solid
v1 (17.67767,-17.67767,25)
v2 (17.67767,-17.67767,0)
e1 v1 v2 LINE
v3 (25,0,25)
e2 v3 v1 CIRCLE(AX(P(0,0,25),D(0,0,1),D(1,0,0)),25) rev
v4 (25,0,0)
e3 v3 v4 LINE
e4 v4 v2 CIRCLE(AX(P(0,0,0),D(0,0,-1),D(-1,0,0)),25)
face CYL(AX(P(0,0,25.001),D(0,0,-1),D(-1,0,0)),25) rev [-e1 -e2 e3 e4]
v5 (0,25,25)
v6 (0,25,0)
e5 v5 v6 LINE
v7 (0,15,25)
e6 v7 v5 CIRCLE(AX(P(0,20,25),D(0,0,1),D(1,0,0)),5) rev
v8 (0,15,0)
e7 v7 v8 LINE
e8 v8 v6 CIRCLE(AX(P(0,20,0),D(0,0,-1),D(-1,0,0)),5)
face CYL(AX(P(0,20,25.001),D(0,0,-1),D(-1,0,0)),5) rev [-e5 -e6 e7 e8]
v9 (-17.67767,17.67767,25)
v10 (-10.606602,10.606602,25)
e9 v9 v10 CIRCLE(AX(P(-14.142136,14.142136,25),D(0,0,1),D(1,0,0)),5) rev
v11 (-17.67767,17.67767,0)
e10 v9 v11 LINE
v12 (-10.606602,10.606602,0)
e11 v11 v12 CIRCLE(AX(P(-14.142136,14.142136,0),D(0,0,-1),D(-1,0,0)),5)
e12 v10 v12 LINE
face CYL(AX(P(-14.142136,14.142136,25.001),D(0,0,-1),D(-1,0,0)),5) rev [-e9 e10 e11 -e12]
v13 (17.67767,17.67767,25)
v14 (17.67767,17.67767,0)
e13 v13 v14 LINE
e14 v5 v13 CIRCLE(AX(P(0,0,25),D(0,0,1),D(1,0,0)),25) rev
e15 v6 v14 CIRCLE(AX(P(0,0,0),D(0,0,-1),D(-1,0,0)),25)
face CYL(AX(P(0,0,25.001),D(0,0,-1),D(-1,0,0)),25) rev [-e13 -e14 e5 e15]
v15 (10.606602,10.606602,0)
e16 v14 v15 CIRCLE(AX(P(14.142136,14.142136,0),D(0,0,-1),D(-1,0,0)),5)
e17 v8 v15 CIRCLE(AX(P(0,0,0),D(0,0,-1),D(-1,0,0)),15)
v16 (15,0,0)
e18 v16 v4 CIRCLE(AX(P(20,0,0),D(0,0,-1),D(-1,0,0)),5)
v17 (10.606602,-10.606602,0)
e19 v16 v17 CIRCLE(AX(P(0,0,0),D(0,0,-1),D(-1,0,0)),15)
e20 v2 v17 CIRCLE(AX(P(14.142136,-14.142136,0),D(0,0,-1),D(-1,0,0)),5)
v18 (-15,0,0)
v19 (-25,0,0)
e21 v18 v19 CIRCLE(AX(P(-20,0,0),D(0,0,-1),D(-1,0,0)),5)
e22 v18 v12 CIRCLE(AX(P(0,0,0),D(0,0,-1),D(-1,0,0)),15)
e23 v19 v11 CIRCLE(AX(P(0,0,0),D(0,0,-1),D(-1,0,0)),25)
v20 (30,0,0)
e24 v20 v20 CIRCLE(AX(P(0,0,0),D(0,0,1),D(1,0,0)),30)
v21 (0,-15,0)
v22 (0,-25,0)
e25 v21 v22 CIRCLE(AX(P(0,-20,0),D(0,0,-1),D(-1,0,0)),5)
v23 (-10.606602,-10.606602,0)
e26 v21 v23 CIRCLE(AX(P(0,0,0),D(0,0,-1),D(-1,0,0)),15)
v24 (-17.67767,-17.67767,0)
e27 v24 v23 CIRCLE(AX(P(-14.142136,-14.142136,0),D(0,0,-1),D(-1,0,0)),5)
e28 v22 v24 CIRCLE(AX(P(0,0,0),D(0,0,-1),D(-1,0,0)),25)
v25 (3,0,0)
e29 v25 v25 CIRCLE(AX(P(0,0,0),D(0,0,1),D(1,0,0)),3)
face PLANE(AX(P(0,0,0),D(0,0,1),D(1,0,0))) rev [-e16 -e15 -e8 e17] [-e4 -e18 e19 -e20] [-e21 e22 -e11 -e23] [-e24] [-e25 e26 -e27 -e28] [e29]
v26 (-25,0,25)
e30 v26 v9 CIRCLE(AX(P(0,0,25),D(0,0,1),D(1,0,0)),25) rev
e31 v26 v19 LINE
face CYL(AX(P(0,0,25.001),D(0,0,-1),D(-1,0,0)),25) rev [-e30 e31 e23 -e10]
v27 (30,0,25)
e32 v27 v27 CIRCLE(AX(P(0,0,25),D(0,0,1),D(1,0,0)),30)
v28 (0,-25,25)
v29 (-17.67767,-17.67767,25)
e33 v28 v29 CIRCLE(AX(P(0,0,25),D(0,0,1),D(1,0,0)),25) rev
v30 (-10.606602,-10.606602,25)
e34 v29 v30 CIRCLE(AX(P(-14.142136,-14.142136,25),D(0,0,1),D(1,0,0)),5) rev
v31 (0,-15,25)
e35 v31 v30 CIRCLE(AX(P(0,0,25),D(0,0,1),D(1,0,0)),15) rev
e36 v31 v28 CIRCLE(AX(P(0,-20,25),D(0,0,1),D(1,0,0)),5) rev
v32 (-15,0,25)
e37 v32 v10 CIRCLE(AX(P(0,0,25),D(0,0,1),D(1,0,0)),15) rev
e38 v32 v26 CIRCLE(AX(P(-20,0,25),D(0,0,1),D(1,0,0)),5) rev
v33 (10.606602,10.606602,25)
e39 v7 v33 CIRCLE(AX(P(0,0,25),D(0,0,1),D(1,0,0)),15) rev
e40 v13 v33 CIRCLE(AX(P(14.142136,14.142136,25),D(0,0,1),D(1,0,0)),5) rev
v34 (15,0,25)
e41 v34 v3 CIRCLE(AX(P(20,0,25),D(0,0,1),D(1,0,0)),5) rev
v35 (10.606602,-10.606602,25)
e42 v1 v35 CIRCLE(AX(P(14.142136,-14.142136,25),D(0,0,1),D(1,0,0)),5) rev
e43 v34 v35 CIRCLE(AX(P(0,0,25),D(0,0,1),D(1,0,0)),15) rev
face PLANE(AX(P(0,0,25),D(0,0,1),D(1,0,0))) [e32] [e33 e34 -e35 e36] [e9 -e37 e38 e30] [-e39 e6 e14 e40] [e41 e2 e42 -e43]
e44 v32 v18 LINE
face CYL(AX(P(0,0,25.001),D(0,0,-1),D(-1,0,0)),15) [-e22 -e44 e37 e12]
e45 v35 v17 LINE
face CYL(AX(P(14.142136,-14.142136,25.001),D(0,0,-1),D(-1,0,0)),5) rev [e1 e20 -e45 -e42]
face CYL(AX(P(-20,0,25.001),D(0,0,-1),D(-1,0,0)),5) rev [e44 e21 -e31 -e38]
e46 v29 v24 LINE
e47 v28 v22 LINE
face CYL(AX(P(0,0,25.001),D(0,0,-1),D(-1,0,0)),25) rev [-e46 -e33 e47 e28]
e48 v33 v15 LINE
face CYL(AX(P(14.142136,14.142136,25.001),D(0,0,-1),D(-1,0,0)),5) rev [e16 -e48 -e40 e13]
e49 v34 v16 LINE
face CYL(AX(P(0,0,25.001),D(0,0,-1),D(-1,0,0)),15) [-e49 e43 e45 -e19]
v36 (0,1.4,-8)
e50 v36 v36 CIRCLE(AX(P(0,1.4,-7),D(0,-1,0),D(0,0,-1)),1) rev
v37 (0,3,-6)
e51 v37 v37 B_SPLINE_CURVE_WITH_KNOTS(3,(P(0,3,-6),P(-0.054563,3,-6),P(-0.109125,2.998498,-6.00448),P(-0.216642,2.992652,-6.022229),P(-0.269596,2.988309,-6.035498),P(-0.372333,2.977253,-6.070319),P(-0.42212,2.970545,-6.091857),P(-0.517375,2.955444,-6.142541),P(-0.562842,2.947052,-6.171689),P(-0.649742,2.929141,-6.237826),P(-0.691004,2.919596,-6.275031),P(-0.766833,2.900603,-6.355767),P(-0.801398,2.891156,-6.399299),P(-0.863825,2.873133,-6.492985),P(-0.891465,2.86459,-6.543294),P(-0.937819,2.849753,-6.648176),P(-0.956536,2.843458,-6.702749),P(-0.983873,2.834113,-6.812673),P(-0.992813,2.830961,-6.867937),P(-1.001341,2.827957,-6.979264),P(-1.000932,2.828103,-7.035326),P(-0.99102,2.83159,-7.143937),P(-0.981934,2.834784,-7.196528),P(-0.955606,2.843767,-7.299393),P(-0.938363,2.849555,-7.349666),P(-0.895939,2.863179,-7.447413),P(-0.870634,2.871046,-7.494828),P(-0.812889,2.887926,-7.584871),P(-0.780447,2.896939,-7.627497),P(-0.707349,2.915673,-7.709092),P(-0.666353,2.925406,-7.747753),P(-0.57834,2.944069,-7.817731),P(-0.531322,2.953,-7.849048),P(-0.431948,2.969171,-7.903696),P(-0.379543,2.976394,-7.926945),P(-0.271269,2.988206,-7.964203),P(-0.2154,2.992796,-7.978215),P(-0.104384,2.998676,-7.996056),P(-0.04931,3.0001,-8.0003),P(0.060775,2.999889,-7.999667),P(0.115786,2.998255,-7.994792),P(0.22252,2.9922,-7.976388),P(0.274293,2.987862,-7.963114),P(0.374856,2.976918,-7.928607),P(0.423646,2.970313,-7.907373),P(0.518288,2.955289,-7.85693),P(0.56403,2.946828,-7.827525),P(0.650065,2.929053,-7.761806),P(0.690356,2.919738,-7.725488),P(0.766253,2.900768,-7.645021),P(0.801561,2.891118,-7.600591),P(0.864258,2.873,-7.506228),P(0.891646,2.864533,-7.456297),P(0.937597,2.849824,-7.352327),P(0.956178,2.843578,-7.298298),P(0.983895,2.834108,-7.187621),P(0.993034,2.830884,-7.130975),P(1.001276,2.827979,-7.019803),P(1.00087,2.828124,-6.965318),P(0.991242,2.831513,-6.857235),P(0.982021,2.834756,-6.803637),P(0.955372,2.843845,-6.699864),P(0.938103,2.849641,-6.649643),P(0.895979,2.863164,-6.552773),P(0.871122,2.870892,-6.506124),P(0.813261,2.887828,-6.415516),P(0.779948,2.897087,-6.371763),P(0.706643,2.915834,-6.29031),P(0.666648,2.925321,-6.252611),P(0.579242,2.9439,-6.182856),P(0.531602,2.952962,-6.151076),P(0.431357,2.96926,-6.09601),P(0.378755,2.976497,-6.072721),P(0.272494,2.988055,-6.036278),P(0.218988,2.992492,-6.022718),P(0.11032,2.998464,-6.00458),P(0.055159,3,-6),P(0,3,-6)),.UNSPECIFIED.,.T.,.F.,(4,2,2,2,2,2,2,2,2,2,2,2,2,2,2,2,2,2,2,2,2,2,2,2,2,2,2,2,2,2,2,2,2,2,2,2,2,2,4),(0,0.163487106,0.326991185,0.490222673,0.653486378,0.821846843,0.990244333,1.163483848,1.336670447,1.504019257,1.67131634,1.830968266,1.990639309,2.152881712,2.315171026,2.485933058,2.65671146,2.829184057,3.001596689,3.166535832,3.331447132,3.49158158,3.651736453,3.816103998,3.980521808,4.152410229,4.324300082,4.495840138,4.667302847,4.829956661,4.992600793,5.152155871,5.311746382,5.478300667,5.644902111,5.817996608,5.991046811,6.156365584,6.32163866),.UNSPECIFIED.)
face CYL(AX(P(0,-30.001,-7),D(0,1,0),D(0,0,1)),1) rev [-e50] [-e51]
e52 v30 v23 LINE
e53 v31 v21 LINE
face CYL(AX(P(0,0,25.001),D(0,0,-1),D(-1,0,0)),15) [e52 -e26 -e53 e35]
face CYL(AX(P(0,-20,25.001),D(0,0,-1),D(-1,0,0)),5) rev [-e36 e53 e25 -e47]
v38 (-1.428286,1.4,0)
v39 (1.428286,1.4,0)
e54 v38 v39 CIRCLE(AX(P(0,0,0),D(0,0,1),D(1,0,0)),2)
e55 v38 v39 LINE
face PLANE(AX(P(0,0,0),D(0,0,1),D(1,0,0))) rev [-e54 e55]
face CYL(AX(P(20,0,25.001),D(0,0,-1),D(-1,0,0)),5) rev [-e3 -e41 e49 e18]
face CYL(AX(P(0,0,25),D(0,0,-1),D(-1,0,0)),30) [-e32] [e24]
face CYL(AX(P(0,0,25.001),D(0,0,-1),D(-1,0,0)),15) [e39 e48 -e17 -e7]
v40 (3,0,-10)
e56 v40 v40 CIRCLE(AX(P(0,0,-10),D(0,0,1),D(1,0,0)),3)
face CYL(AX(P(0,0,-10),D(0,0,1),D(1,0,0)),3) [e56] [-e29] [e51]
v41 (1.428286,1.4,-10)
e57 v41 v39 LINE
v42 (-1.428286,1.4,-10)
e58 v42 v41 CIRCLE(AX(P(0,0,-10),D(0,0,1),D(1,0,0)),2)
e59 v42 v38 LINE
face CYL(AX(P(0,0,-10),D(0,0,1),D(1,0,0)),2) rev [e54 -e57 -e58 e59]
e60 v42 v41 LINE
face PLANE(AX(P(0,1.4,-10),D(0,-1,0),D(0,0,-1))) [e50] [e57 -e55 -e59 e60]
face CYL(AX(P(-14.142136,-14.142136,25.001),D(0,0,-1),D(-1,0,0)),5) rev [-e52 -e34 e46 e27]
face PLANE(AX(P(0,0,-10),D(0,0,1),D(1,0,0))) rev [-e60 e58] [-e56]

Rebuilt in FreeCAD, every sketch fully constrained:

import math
import FreeCAD as App
import Part
import Sketcher

doc = App.newDocument("Part")
body = doc.addObject("PartDesign::Body", "Body")

# Sketch on XY plane
sketch1 = doc.addObject("Sketcher::SketchObject", "Sketch")
body.addObject(sketch1)
sketch1.AttachmentSupport = (doc.XY_Plane, [""])
sketch1.MapMode = "FlatFace"
sketch1.addGeometry(Part.Circle(App.Vector(0, 0, 0), App.Vector(0, 0, 1), 30), False)
sketch1.addConstraint(Sketcher.Constraint("Coincident", 0, 3, -1, 1))
sketch1.addConstraint(Sketcher.Constraint("Diameter", 0, 60.0))
pad1 = doc.addObject("PartDesign::Pad", "Pad")
body.addObject(pad1)
pad1.Profile = sketch1
pad1.Length = 25

# Sketch on XY plane
sketch2 = doc.addObject("Sketcher::SketchObject", "Sketch001")
body.addObject(sketch2)
sketch2.AttachmentSupport = (doc.XY_Plane, [""])
sketch2.MapMode = "FlatFace"
sketch2.addGeometry(Part.ArcOfCircle(Part.Circle(App.Vector(0, 0, 0), App.Vector(0, 0, 1), 3), math.radians(27.818139), math.radians(152.181861)), False)
sketch2.addGeometry(Part.ArcOfCircle(Part.Circle(App.Vector(0, 0, 0), App.Vector(0, 0, 1), 3), math.radians(152.181861), math.radians(360)), False)
sketch2.addGeometry(Part.ArcOfCircle(Part.Circle(App.Vector(0, 0, 0), App.Vector(0, 0, 1), 3), math.radians(0), math.radians(27.818139)), False)
sketch2.addGeometry(Part.ArcOfCircle(Part.Circle(App.Vector(0, 0, 0), App.Vector(0, 0, 1), 2), math.radians(0), math.radians(44.427004)), False)
sketch2.addGeometry(Part.ArcOfCircle(Part.Circle(App.Vector(0, 0, 0), App.Vector(0, 0, 1), 2), math.radians(135.572996), math.radians(360)), False)
sketch2.addGeometry(Part.LineSegment(App.Vector(-1.428286, 1.4, 0), App.Vector(1.428286, 1.4, 0)), False)
sketch2.addConstraint(Sketcher.Constraint("Tangent", 0, 2, 1, 1))
sketch2.addConstraint(Sketcher.Constraint("Tangent", 1, 2, 2, 1))
sketch2.addConstraint(Sketcher.Constraint("Tangent", 2, 2, 0, 1))
sketch2.addConstraint(Sketcher.Constraint("Tangent", 3, 1, 4, 2))
sketch2.addConstraint(Sketcher.Constraint("Coincident", 4, 1, 5, 1))
sketch2.addConstraint(Sketcher.Constraint("Coincident", 5, 2, 3, 2))
sketch2.addConstraint(Sketcher.Constraint("Horizontal", 5))
sketch2.addConstraint(Sketcher.Constraint("Coincident", 0, 3, -1, 1))
sketch2.addConstraint(Sketcher.Constraint("Coincident", 3, 3, -1, 1))
sketch2.addConstraint(Sketcher.Constraint("Equal", 3, 4))
sketch2.addConstraint(Sketcher.Constraint("PointOnObject", 1, 2, -1))
sketch2.addConstraint(Sketcher.Constraint("PointOnObject", 3, 1, -1))
sketch2.addConstraint(Sketcher.Constraint("Horizontal", 0, 2, 2, 2))
sketch2.addConstraint(Sketcher.Constraint("Horizontal", 2, 2, 4, 1))
sketch2.addConstraint(Sketcher.Constraint("Radius", 0, 3.0))
sketch2.addConstraint(Sketcher.Constraint("Radius", 3, 2.0))
sketch2.addConstraint(Sketcher.Constraint("DistanceY", -1, 1, 0, 2, 1.4))
pad2 = doc.addObject("PartDesign::Pad", "Pad001")
body.addObject(pad2)
pad2.Profile = sketch2
pad2.Length = 10
pad2.Reversed = True

# Sketch on XZ plane
sketch3 = doc.addObject("Sketcher::SketchObject", "Sketch002")
body.addObject(sketch3)
sketch3.AttachmentSupport = (doc.XZ_Plane, [""])
sketch3.MapMode = "FlatFace"
sketch3.AttachmentOffset = App.Placement(App.Vector(0, 0, -3), App.Rotation())
sketch3.addGeometry(Part.Circle(App.Vector(0, -7, 0), App.Vector(0, 0, 1), 1), False)
sketch3.addConstraint(Sketcher.Constraint("PointOnObject", 0, 3, -2))
sketch3.addConstraint(Sketcher.Constraint("Diameter", 0, 2.0))
sketch3.addConstraint(Sketcher.Constraint("DistanceY", 0, 3, -1, 1, 7.0))
pocket1 = doc.addObject("PartDesign::Pocket", "Pocket")
body.addObject(pocket1)
pocket1.Profile = sketch3
pocket1.Type = "UpToFirst"
pocket1.Reversed = True

# Sketch on XY plane
sketch4 = doc.addObject("Sketcher::SketchObject", "Sketch003")
body.addObject(sketch4)
sketch4.AttachmentSupport = (doc.XY_Plane, [""])
sketch4.MapMode = "FlatFace"
sketch4.addGeometry(Part.ArcOfCircle(Part.Circle(App.Vector(0, 0, 0), App.Vector(0, 0, 1), 15), math.radians(45), math.radians(90)), False)
sketch4.addGeometry(Part.ArcOfCircle(Part.Circle(App.Vector(0, 20, 0), App.Vector(0, 0, 1), 5), math.radians(90), math.radians(270)), False)
sketch4.addGeometry(Part.ArcOfCircle(Part.Circle(App.Vector(0, 0, 0), App.Vector(0, 0, 1), 25), math.radians(45), math.radians(90)), False)
sketch4.addGeometry(Part.ArcOfCircle(Part.Circle(App.Vector(14.142136, 14.142136, 0), App.Vector(0, 0, 1), 5), math.radians(-135), math.radians(45)), False)
sketch4.addConstraint(Sketcher.Constraint("Tangent", 0, 2, 1, 2))
sketch4.addConstraint(Sketcher.Constraint("Tangent", 1, 1, 2, 2))
sketch4.addConstraint(Sketcher.Constraint("Tangent", 2, 1, 3, 2))
sketch4.addConstraint(Sketcher.Constraint("Tangent", 3, 1, 0, 1))
sketch4.addConstraint(Sketcher.Constraint("Coincident", 0, 3, -1, 1))
sketch4.addConstraint(Sketcher.Constraint("Coincident", 2, 3, -1, 1))
sketch4.addConstraint(Sketcher.Constraint("PointOnObject", 1, 3, -2))
sketch4.addConstraint(Sketcher.Constraint("Radius", 0, 15.0))
sketch4.addConstraint(Sketcher.Constraint("Radius", 1, 5.0))
sketch4.addConstraint(Sketcher.Constraint("DistanceX", -1, 1, 3, 1, 10.606602))
pocket2 = doc.addObject("PartDesign::Pocket", "Pocket001")
body.addObject(pocket2)
pocket2.Profile = sketch4
pocket2.Type = "UpToFirst"
pocket2.Reversed = True

# Sketch on XY plane
sketch5 = doc.addObject("Sketcher::SketchObject", "Sketch004")
body.addObject(sketch5)
sketch5.AttachmentSupport = (doc.XY_Plane, [""])
sketch5.MapMode = "FlatFace"
sketch5.addGeometry(Part.ArcOfCircle(Part.Circle(App.Vector(0, 0, 0), App.Vector(0, 0, 1), 15), math.radians(135), math.radians(180)), False)
sketch5.addGeometry(Part.ArcOfCircle(Part.Circle(App.Vector(-20, 0, 0), App.Vector(0, 0, 1), 5), math.radians(180), math.radians(360)), False)
sketch5.addGeometry(Part.ArcOfCircle(Part.Circle(App.Vector(0, 0, 0), App.Vector(0, 0, 1), 25), math.radians(135), math.radians(180)), False)
sketch5.addGeometry(Part.ArcOfCircle(Part.Circle(App.Vector(-14.142136, 14.142136, 0), App.Vector(0, 0, 1), 5), math.radians(-45), math.radians(135)), False)
sketch5.addConstraint(Sketcher.Constraint("Tangent", 0, 2, 1, 2))
sketch5.addConstraint(Sketcher.Constraint("Tangent", 1, 1, 2, 2))
sketch5.addConstraint(Sketcher.Constraint("Tangent", 2, 1, 3, 2))
sketch5.addConstraint(Sketcher.Constraint("Tangent", 3, 1, 0, 1))
sketch5.addConstraint(Sketcher.Constraint("Coincident", 0, 3, -1, 1))
sketch5.addConstraint(Sketcher.Constraint("Coincident", 2, 3, -1, 1))
sketch5.addConstraint(Sketcher.Constraint("PointOnObject", 1, 3, -1))
sketch5.addConstraint(Sketcher.Constraint("Radius", 0, 15.0))
sketch5.addConstraint(Sketcher.Constraint("Radius", 1, 5.0))
sketch5.addConstraint(Sketcher.Constraint("DistanceX", 3, 1, -1, 1, 10.606602))
pocket3 = doc.addObject("PartDesign::Pocket", "Pocket002")
body.addObject(pocket3)
pocket3.Profile = sketch5
pocket3.Type = "UpToFirst"
pocket3.Reversed = True

# Sketch on XY plane
sketch6 = doc.addObject("Sketcher::SketchObject", "Sketch005")
body.addObject(sketch6)
sketch6.AttachmentSupport = (doc.XY_Plane, [""])
sketch6.MapMode = "FlatFace"
sketch6.addGeometry(Part.ArcOfCircle(Part.Circle(App.Vector(20, 0, 0), App.Vector(0, 0, 1), 5), math.radians(0), math.radians(180)), False)
sketch6.addGeometry(Part.ArcOfCircle(Part.Circle(App.Vector(0, 0, 0), App.Vector(0, 0, 1), 25), math.radians(-45), math.radians(0)), False)
sketch6.addGeometry(Part.ArcOfCircle(Part.Circle(App.Vector(14.142136, -14.142136, 0), App.Vector(0, 0, 1), 5), math.radians(135), math.radians(314.999999)), False)
sketch6.addGeometry(Part.ArcOfCircle(Part.Circle(App.Vector(0, 0, 0), App.Vector(0, 0, 1), 15), math.radians(-45), math.radians(0)), False)
sketch6.addConstraint(Sketcher.Constraint("Tangent", 0, 1, 1, 2))
sketch6.addConstraint(Sketcher.Constraint("Tangent", 1, 1, 2, 2))
sketch6.addConstraint(Sketcher.Constraint("Tangent", 2, 1, 3, 1))
sketch6.addConstraint(Sketcher.Constraint("Tangent", 3, 2, 0, 2))
sketch6.addConstraint(Sketcher.Constraint("Coincident", 1, 3, -1, 1))
sketch6.addConstraint(Sketcher.Constraint("Coincident", 3, 3, -1, 1))
sketch6.addConstraint(Sketcher.Constraint("PointOnObject", 0, 3, -1))
sketch6.addConstraint(Sketcher.Constraint("Radius", 0, 5.0))
sketch6.addConstraint(Sketcher.Constraint("Radius", 1, 25.0))
sketch6.addConstraint(Sketcher.Constraint("DistanceX", -1, 1, 2, 1, 10.606602))
pocket4 = doc.addObject("PartDesign::Pocket", "Pocket003")
body.addObject(pocket4)
pocket4.Profile = sketch6
pocket4.Type = "UpToFirst"
pocket4.Reversed = True

# Sketch on XY plane
sketch7 = doc.addObject("Sketcher::SketchObject", "Sketch006")
body.addObject(sketch7)
sketch7.AttachmentSupport = (doc.XY_Plane, [""])
sketch7.MapMode = "FlatFace"
sketch7.addGeometry(Part.ArcOfCircle(Part.Circle(App.Vector(0, 0, 0), App.Vector(0, 0, 1), 15), math.radians(-135), math.radians(-90)), False)
sketch7.addGeometry(Part.ArcOfCircle(Part.Circle(App.Vector(0, -20, 0), App.Vector(0, 0, 1), 5), math.radians(-89.999999), math.radians(90)), False)
sketch7.addGeometry(Part.ArcOfCircle(Part.Circle(App.Vector(0, 0, 0), App.Vector(0, 0, 1), 25), math.radians(-135), math.radians(-90)), False)
sketch7.addGeometry(Part.ArcOfCircle(Part.Circle(App.Vector(-14.142136, -14.142136, 0), App.Vector(0, 0, 1), 5), math.radians(45), math.radians(224.999999)), False)
sketch7.addConstraint(Sketcher.Constraint("Tangent", 0, 2, 1, 2))
sketch7.addConstraint(Sketcher.Constraint("Tangent", 1, 1, 2, 2))
sketch7.addConstraint(Sketcher.Constraint("Tangent", 2, 1, 3, 2))
sketch7.addConstraint(Sketcher.Constraint("Tangent", 3, 1, 0, 1))
sketch7.addConstraint(Sketcher.Constraint("Coincident", 0, 3, -1, 1))
sketch7.addConstraint(Sketcher.Constraint("Coincident", 2, 3, -1, 1))
sketch7.addConstraint(Sketcher.Constraint("PointOnObject", 1, 3, -2))
sketch7.addConstraint(Sketcher.Constraint("Radius", 0, 15.0))
sketch7.addConstraint(Sketcher.Constraint("Radius", 1, 5.0))
sketch7.addConstraint(Sketcher.Constraint("DistanceX", 3, 1, -1, 1, 10.606602))
pocket5 = doc.addObject("PartDesign::Pocket", "Pocket004")
body.addObject(pocket5)
pocket5.Profile = sketch7
pocket5.Type = "UpToFirst"
pocket5.Reversed = True

doc.recompute()
